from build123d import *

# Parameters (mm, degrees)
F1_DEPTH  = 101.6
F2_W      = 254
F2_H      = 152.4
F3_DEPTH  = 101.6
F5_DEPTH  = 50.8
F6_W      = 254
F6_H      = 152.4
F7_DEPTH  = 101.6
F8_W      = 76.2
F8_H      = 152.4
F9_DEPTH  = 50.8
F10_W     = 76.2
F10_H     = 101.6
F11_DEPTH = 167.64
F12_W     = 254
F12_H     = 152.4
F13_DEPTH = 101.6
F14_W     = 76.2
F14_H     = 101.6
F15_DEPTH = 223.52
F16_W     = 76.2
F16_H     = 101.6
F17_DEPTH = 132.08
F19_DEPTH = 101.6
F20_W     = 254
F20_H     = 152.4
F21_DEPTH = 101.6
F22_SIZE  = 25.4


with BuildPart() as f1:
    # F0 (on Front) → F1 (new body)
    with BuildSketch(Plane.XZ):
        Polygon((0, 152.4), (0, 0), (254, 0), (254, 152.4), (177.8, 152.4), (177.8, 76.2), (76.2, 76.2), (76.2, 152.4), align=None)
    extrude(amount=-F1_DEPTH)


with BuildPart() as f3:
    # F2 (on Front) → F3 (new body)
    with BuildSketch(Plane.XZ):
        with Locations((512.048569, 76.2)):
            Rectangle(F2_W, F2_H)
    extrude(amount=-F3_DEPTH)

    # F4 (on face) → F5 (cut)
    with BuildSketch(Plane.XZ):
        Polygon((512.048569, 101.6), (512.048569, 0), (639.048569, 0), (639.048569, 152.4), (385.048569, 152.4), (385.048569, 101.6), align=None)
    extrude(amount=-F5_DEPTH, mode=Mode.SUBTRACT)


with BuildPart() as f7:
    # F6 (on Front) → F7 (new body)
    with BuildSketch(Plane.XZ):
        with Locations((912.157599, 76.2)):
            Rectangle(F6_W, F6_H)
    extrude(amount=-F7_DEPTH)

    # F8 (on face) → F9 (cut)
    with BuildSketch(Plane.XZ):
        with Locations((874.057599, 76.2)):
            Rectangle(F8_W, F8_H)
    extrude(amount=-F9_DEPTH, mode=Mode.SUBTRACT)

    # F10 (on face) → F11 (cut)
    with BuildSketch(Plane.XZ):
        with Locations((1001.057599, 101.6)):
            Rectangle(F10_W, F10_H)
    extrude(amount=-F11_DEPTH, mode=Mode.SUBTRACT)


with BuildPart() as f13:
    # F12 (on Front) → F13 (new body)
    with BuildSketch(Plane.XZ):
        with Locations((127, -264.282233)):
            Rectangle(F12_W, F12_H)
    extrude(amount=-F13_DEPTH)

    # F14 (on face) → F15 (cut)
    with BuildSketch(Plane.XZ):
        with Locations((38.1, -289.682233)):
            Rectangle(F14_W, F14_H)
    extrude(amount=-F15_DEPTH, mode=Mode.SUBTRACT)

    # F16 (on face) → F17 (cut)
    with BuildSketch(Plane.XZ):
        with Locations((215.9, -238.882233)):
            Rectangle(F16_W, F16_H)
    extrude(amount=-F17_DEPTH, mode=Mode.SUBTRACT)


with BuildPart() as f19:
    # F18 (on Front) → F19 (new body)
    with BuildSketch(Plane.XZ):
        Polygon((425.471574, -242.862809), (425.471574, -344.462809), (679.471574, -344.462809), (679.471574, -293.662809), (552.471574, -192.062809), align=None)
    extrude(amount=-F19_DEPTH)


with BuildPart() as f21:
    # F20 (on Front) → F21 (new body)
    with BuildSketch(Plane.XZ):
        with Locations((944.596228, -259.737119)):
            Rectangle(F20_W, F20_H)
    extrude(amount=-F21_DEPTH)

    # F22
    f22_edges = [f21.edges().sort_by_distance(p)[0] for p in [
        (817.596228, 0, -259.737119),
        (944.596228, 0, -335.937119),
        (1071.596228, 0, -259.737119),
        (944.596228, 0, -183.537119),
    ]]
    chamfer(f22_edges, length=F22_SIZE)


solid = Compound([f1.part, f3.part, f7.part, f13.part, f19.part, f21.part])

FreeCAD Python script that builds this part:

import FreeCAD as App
import Part
import Sketcher
from FreeCAD import Vector
Q = App.Units.Quantity


def edges_at(feature, points):
    """Names of the edges that pass closest to the given points."""
    edges = feature.Shape.Edges
    near = lambda p: min(range(len(edges)), key=lambda i: edges[i].distToShape(Part.Vertex(*p))[0])
    return sorted({f"Edge{near(p) + 1}" for p in points})

doc = App.newDocument("Part")
body = doc.addObject("PartDesign::Body", "Body")

# Sketch on XZ plane
sketch1 = body.newObject("Sketcher::SketchObject", "Sketch")
sketch1.AttachmentSupport = (doc.getObject("XZ_Plane"), [""])
sketch1.MapMode = "FlatFace"
sketch1.addGeometry(Part.LineSegment(Vector(0, 152.4, 0), Vector(0, 0, 0)), False)
sketch1.addGeometry(Part.LineSegment(Vector(0, 0, 0), Vector(254, 0, 0)), False)
sketch1.addGeometry(Part.LineSegment(Vector(254, 0, 0), Vector(254, 152.4, 0)), False)
sketch1.addGeometry(Part.LineSegment(Vector(254, 152.4, 0), Vector(177.8, 152.4, 0)), False)
sketch1.addGeometry(Part.LineSegment(Vector(177.8, 152.4, 0), Vector(177.8, 76.2, 0)), False)
sketch1.addGeometry(Part.LineSegment(Vector(177.8, 76.2, 0), Vector(76.2, 76.2, 0)), False)
sketch1.addGeometry(Part.LineSegment(Vector(76.2, 76.2, 0), Vector(76.2, 152.4, 0)), False)
sketch1.addGeometry(Part.LineSegment(Vector(76.2, 152.4, 0), Vector(0, 152.4, 0)), False)
sketch1.addConstraint(Sketcher.Constraint("Coincident", 0, 2, 1, 1))
sketch1.addConstraint(Sketcher.Constraint("Coincident", 1, 2, 2, 1))
sketch1.addConstraint(Sketcher.Constraint("Coincident", 2, 2, 3, 1))
sketch1.addConstraint(Sketcher.Constraint("Coincident", 3, 2, 4, 1))
sketch1.addConstraint(Sketcher.Constraint("Coincident", 4, 2, 5, 1))
sketch1.addConstraint(Sketcher.Constraint("Coincident", 5, 2, 6, 1))
sketch1.addConstraint(Sketcher.Constraint("Coincident", 6, 2, 7, 1))
sketch1.addConstraint(Sketcher.Constraint("Coincident", 7, 2, 0, 1))
sketch1.addConstraint(Sketcher.Constraint("Vertical", 0))
sketch1.addConstraint(Sketcher.Constraint("Horizontal", 1))
sketch1.addConstraint(Sketcher.Constraint("Vertical", 2))
sketch1.addConstraint(Sketcher.Constraint("Horizontal", 3))
sketch1.addConstraint(Sketcher.Constraint("Vertical", 4))
sketch1.addConstraint(Sketcher.Constraint("Horizontal", 5))
sketch1.addConstraint(Sketcher.Constraint("Vertical", 6))
sketch1.addConstraint(Sketcher.Constraint("Horizontal", 7))
sketch1.addConstraint(Sketcher.Constraint("Coincident", 0, 2, -1, 1))
sketch1.addConstraint(Sketcher.Constraint("Horizontal", 3, 2, 6, 2))
sketch1.addConstraint(Sketcher.Constraint("Equal", 3, 7))
sketch1.addConstraint(Sketcher.Constraint("Equal", 7, 4))
sketch1.addConstraint(Sketcher.Constraint("DistanceX", 1, 1, 1, 2, Q("10 in")))
sketch1.addConstraint(Sketcher.Constraint("DistanceX", 3, 2, 3, 1, Q("3 in")))
sketch1.addConstraint(Sketcher.Constraint("DistanceY", 0, 2, 0, 1, Q("6 in")))
pad1 = body.newObject("PartDesign::Pad", "Pad")
pad1.Profile = sketch1
pad1.Length = Q("4 in")
pad1.Reversed = True
body2 = doc.addObject("PartDesign::Body", "Body001")

# Sketch on XZ plane
sketch2 = body2.newObject("Sketcher::SketchObject", "Sketch001")
sketch2.AttachmentSupport = (doc.getObject("XZ_Plane001"), [""])
sketch2.MapMode = "FlatFace"
sketch2.addGeometry(Part.LineSegment(Vector(385.048569, 152.4, 0), Vector(385.048569, 0, 0)), False)
sketch2.addGeometry(Part.LineSegment(Vector(385.048569, 0, 0), Vector(639.048569, 0, 0)), False)
sketch2.addGeometry(Part.LineSegment(Vector(639.048569, 0, 0), Vector(639.048569, 152.4, 0)), False)
sketch2.addGeometry(Part.LineSegment(Vector(639.048569, 152.4, 0), Vector(385.048569, 152.4, 0)), False)
sketch2.addConstraint(Sketcher.Constraint("Coincident", 0, 2, 1, 1))
sketch2.addConstraint(Sketcher.Constraint("Coincident", 1, 2, 2, 1))
sketch2.addConstraint(Sketcher.Constraint("Coincident", 2, 2, 3, 1))
sketch2.addConstraint(Sketcher.Constraint("Coincident", 3, 2, 0, 1))
sketch2.addConstraint(Sketcher.Constraint("Vertical", 0))
sketch2.addConstraint(Sketcher.Constraint("Horizontal", 1))
sketch2.addConstraint(Sketcher.Constraint("Vertical", 2))
sketch2.addConstraint(Sketcher.Constraint("Horizontal", 3))
sketch2.addConstraint(Sketcher.Constraint("PointOnObject", 0, 2, -1))
sketch2.addConstraint(Sketcher.Constraint("DistanceX", 1, 1, 1, 2, Q("10 in")))
sketch2.addConstraint(Sketcher.Constraint("DistanceY", 0, 2, 0, 1, Q("6 in")))
sketch2.addConstraint(Sketcher.Constraint("DistanceX", -1, 1, 0, 2, Q("385.048569 mm")))
pad2 = body2.newObject("PartDesign::Pad", "Pad001")
pad2.Profile = sketch2
pad2.Length = Q("4 in")
pad2.Reversed = True

# Sketch on XZ plane
sketch3 = body2.newObject("Sketcher::SketchObject", "Sketch002")
sketch3.AttachmentSupport = (doc.getObject("XZ_Plane001"), [""])
sketch3.MapMode = "FlatFace"
sketch3.addGeometry(Part.LineSegment(Vector(512.048569, 101.6, 0), Vector(512.048569, 0, 0)), False)
sketch3.addGeometry(Part.LineSegment(Vector(512.048569, 0, 0), Vector(639.048569, 0, 0)), False)
sketch3.addGeometry(Part.LineSegment(Vector(639.048569, 0, 0), Vector(639.048569, 152.4, 0)), False)
sketch3.addGeometry(Part.LineSegment(Vector(639.048569, 152.4, 0), Vector(385.048569, 152.4, 0)), False)
sketch3.addGeometry(Part.LineSegment(Vector(385.048569, 152.4, 0), Vector(385.048569, 101.6, 0)), False)
sketch3.addGeometry(Part.LineSegment(Vector(385.048569, 101.6, 0), Vector(512.048569, 101.6, 0)), False)
sketch3.addConstraint(Sketcher.Constraint("Coincident", 0, 2, 1, 1))
sketch3.addConstraint(Sketcher.Constraint("Coincident", 1, 2, 2, 1))
sketch3.addConstraint(Sketcher.Constraint("Coincident", 2, 2, 3, 1))
sketch3.addConstraint(Sketcher.Constraint("Coincident", 3, 2, 4, 1))
sketch3.addConstraint(Sketcher.Constraint("Coincident", 4, 2, 5, 1))
sketch3.addConstraint(Sketcher.Constraint("Coincident", 5, 2, 0, 1))
sketch3.addConstraint(Sketcher.Constraint("Vertical", 0))
sketch3.addConstraint(Sketcher.Constraint("Horizontal", 1))
sketch3.addConstraint(Sketcher.Constraint("Vertical", 2))
sketch3.addConstraint(Sketcher.Constraint("Horizontal", 3))
sketch3.addConstraint(Sketcher.Constraint("Vertical", 4))
sketch3.addConstraint(Sketcher.Constraint("Horizontal", 5))
sketch3.addConstraint(Sketcher.Constraint("PointOnObject", 0, 2, -1))
sketch3.addConstraint(Sketcher.Constraint("Equal", 1, 5))
sketch3.addConstraint(Sketcher.Constraint("DistanceX", 1, 1, 1, 2, Q("5 in")))
sketch3.addConstraint(Sketcher.Constraint("DistanceY", 0, 2, 0, 1, Q("4 in")))
sketch3.addConstraint(Sketcher.Constraint("DistanceY", 2, 1, 2, 2, Q("6 in")))
sketch3.addConstraint(Sketcher.Constraint("DistanceX", -1, 1, 0, 2, Q("512.048569 mm")))
pocket1 = body2.newObject("PartDesign::Pocket", "Pocket")
pocket1.Profile = sketch3
pocket1.Length = Q("2 in")
body3 = doc.addObject("PartDesign::Body", "Body002")

# Sketch on XZ plane
sketch4 = body3.newObject("Sketcher::SketchObject", "Sketch003")
sketch4.AttachmentSupport = (doc.getObject("XZ_Plane002"), [""])
sketch4.MapMode = "FlatFace"
sketch4.addGeometry(Part.LineSegment(Vector(785.157599, 152.4, 0), Vector(785.157599, 0, 0)), False)
sketch4.addGeometry(Part.LineSegment(Vector(785.157599, 0, 0), Vector(1039.157599, 0, 0)), False)
sketch4.addGeometry(Part.LineSegment(Vector(1039.157599, 0, 0), Vector(1039.157599, 152.4, 0)), False)
sketch4.addGeometry(Part.LineSegment(Vector(1039.157599, 152.4, 0), Vector(785.157599, 152.4, 0)), False)
sketch4.addConstraint(Sketcher.Constraint("Coincident", 0, 2, 1, 1))
sketch4.addConstraint(Sketcher.Constraint("Coincident", 1, 2, 2, 1))
sketch4.addConstraint(Sketcher.Constraint("Coincident", 2, 2, 3, 1))
sketch4.addConstraint(Sketcher.Constraint("Coincident", 3, 2, 0, 1))
sketch4.addConstraint(Sketcher.Constraint("Vertical", 0))
sketch4.addConstraint(Sketcher.Constraint("Horizontal", 1))
sketch4.addConstraint(Sketcher.Constraint("Vertical", 2))
sketch4.addConstraint(Sketcher.Constraint("Horizontal", 3))
sketch4.addConstraint(Sketcher.Constraint("PointOnObject", 0, 2, -1))
sketch4.addConstraint(Sketcher.Constraint("DistanceX", 1, 1, 1, 2, Q("10 in")))
sketch4.addConstraint(Sketcher.Constraint("DistanceY", 0, 2, 0, 1, Q("6 in")))
sketch4.addConstraint(Sketcher.Constraint("DistanceX", -1, 1, 0, 2, Q("785.157599 mm")))
pad3 = body3.newObject("PartDesign::Pad", "Pad002")
pad3.Profile = sketch4
pad3.Length = Q("4 in")
pad3.Reversed = True

# Sketch on XZ plane
sketch5 = body3.newObject("Sketcher::SketchObject", "Sketch004")
sketch5.AttachmentSupport = (doc.getObject("XZ_Plane002"), [""])
sketch5.MapMode = "FlatFace"
sketch5.addGeometry(Part.LineSegment(Vector(835.957599, 152.4, 0), Vector(835.957599, 0, 0)), False)
sketch5.addGeometry(Part.LineSegment(Vector(835.957599, 0, 0), Vector(912.157599, 0, 0)), False)
sketch5.addGeometry(Part.LineSegment(Vector(912.157599, 0, 0), Vector(912.157599, 152.4, 0)), False)
sketch5.addGeometry(Part.LineSegment(Vector(912.157599, 152.4, 0), Vector(835.957599, 152.4, 0)), False)
sketch5.addConstraint(Sketcher.Constraint("Coincident", 0, 2, 1, 1))
sketch5.addConstraint(Sketcher.Constraint("Coincident", 1, 2, 2, 1))
sketch5.addConstraint(Sketcher.Constraint("Coincident", 2, 2, 3, 1))
sketch5.addConstraint(Sketcher.Constraint("Coincident", 3, 2, 0, 1))
sketch5.addConstraint(Sketcher.Constraint("Vertical", 0))
sketch5.addConstraint(Sketcher.Constraint("Horizontal", 1))
sketch5.addConstraint(Sketcher.Constraint("Vertical", 2))
sketch5.addConstraint(Sketcher.Constraint("Horizontal", 3))
sketch5.addConstraint(Sketcher.Constraint("PointOnObject", 0, 2, -1))
sketch5.addConstraint(Sketcher.Constraint("DistanceX", 1, 1, 1, 2, Q("3 in")))
sketch5.addConstraint(Sketcher.Constraint("DistanceY", 0, 2, 0, 1, Q("6 in")))
sketch5.addConstraint(Sketcher.Constraint("DistanceX", -1, 1, 0, 2, Q("835.957599 mm")))
pocket2 = body3.newObject("PartDesign::Pocket", "Pocket001")
pocket2.Profile = sketch5
pocket2.Length = Q("2 in")

# Sketch on XZ plane
sketch6 = body3.newObject("Sketcher::SketchObject", "Sketch005")
sketch6.AttachmentSupport = (doc.getObject("XZ_Plane002"), [""])
sketch6.MapMode = "FlatFace"
sketch6.addGeometry(Part.LineSegment(Vector(962.957599, 152.4, 0), Vector(962.957599, 50.8, 0)), False)
sketch6.addGeometry(Part.LineSegment(Vector(962.957599, 50.8, 0), Vector(1039.157599, 50.8, 0)), False)
sketch6.addGeometry(Part.LineSegment(Vector(1039.157599, 50.8, 0), Vector(1039.157599, 152.4, 0)), False)
sketch6.addGeometry(Part.LineSegment(Vector(1039.157599, 152.4, 0), Vector(962.957599, 152.4, 0)), False)
sketch6.addConstraint(Sketcher.Constraint("Coincident", 0, 2, 1, 1))
sketch6.addConstraint(Sketcher.Constraint("Coincident", 1, 2, 2, 1))
sketch6.addConstraint(Sketcher.Constraint("Coincident", 2, 2, 3, 1))
sketch6.addConstraint(Sketcher.Constraint("Coincident", 3, 2, 0, 1))
sketch6.addConstraint(Sketcher.Constraint("Vertical", 0))
sketch6.addConstraint(Sketcher.Constraint("Horizontal", 1))
sketch6.addConstraint(Sketcher.Constraint("Vertical", 2))
sketch6.addConstraint(Sketcher.Constraint("Horizontal", 3))
sketch6.addConstraint(Sketcher.Constraint("DistanceX", 1, 1, 1, 2, Q("3 in")))
sketch6.addConstraint(Sketcher.Constraint("DistanceY", 0, 2, 0, 1, Q("4 in")))
sketch6.addConstraint(Sketcher.Constraint("DistanceY", -1, 1, 0, 2, Q("2 in")))
sketch6.addConstraint(Sketcher.Constraint("DistanceX", -1, 1, 0, 2, Q("962.957599 mm")))
pocket3 = body3.newObject("PartDesign::Pocket", "Pocket002")
pocket3.Profile = sketch6
pocket3.Length = Q("6.6 in")
body4 = doc.addObject("PartDesign::Body", "Body003")

# Sketch on XZ plane
sketch7 = body4.newObject("Sketcher::SketchObject", "Sketch006")
sketch7.AttachmentSupport = (doc.getObject("XZ_Plane003"), [""])
sketch7.MapMode = "FlatFace"
sketch7.addGeometry(Part.LineSegment(Vector(0, -188.082233, 0), Vector(0, -340.482233, 0)), False)
sketch7.addGeometry(Part.LineSegment(Vector(0, -340.482233, 0), Vector(254, -340.482233, 0)), False)
sketch7.addGeometry(Part.LineSegment(Vector(254, -340.482233, 0), Vector(254, -188.082233, 0)), False)
sketch7.addGeometry(Part.LineSegment(Vector(254, -188.082233, 0), Vector(0, -188.082233, 0)), False)
sketch7.addConstraint(Sketcher.Constraint("Coincident", 0, 2, 1, 1))
sketch7.addConstraint(Sketcher.Constraint("Coincident", 1, 2, 2, 1))
sketch7.addConstraint(Sketcher.Constraint("Coincident", 2, 2, 3, 1))
sketch7.addConstraint(Sketcher.Constraint("Coincident", 3, 2, 0, 1))
sketch7.addConstraint(Sketcher.Constraint("Vertical", 0))
sketch7.addConstraint(Sketcher.Constraint("Horizontal", 1))
sketch7.addConstraint(Sketcher.Constraint("Vertical", 2))
sketch7.addConstraint(Sketcher.Constraint("Horizontal", 3))
sketch7.addConstraint(Sketcher.Constraint("PointOnObject", 0, 2, -2))
sketch7.addConstraint(Sketcher.Constraint("DistanceX", 1, 1, 1, 2, Q("10 in")))
sketch7.addConstraint(Sketcher.Constraint("DistanceY", 0, 2, 0, 1, Q("6 in")))
sketch7.addConstraint(Sketcher.Constraint("DistanceY", 0, 2, -1, 1, Q("340.482233 mm")))
pad4 = body4.newObject("PartDesign::Pad", "Pad003")
pad4.Profile = sketch7
pad4.Length = Q("4 in")
pad4.Reversed = True

# Sketch on XZ plane
sketch8 = body4.newObject("Sketcher::SketchObject", "Sketch007")
sketch8.AttachmentSupport = (doc.getObject("XZ_Plane003"), [""])
sketch8.MapMode = "FlatFace"
sketch8.addGeometry(Part.LineSegment(Vector(0, -238.882233, 0), Vector(0, -340.482233, 0)), False)
sketch8.addGeometry(Part.LineSegment(Vector(0, -340.482233, 0), Vector(76.2, -340.482233, 0)), False)
sketch8.addGeometry(Part.LineSegment(Vector(76.2, -340.482233, 0), Vector(76.2, -238.882233, 0)), False)
sketch8.addGeometry(Part.LineSegment(Vector(76.2, -238.882233, 0), Vector(0, -238.882233, 0)), False)
sketch8.addConstraint(Sketcher.Constraint("Coincident", 0, 2, 1, 1))
sketch8.addConstraint(Sketcher.Constraint("Coincident", 1, 2, 2, 1))
sketch8.addConstraint(Sketcher.Constraint("Coincident", 2, 2, 3, 1))
sketch8.addConstraint(Sketcher.Constraint("Coincident", 3, 2, 0, 1))
sketch8.addConstraint(Sketcher.Constraint("Vertical", 0))
sketch8.addConstraint(Sketcher.Constraint("Horizontal", 1))
sketch8.addConstraint(Sketcher.Constraint("Vertical", 2))
sketch8.addConstraint(Sketcher.Constraint("Horizontal", 3))
sketch8.addConstraint(Sketcher.Constraint("PointOnObject", 0, 2, -2))
sketch8.addConstraint(Sketcher.Constraint("DistanceX", 1, 1, 1, 2, Q("3 in")))
sketch8.addConstraint(Sketcher.Constraint("DistanceY", 0, 2, 0, 1, Q("4 in")))
sketch8.addConstraint(Sketcher.Constraint("DistanceY", 0, 2, -1, 1, Q("340.482233 mm")))
pocket4 = body4.newObject("PartDesign::Pocket", "Pocket003")
pocket4.Profile = sketch8
pocket4.Length = Q("8.8 in")

# Sketch on XZ plane
sketch9 = body4.newObject("Sketcher::SketchObject", "Sketch008")
sketch9.AttachmentSupport = (doc.getObject("XZ_Plane003"), [""])
sketch9.MapMode = "FlatFace"
sketch9.addGeometry(Part.LineSegment(Vector(177.8, -188.082233, 0), Vector(177.8, -289.682233, 0)), False)
sketch9.addGeometry(Part.LineSegment(Vector(177.8, -289.682233, 0), Vector(254, -289.682233, 0)), False)
sketch9.addGeometry(Part.LineSegment(Vector(254, -289.682233, 0), Vector(254, -188.082233, 0)), False)
sketch9.addGeometry(Part.LineSegment(Vector(254, -188.082233, 0), Vector(177.8, -188.082233, 0)), False)
sketch9.addConstraint(Sketcher.Constraint("Coincident", 0, 2, 1, 1))
sketch9.addConstraint(Sketcher.Constraint("Coincident", 1, 2, 2, 1))
sketch9.addConstraint(Sketcher.Constraint("Coincident", 2, 2, 3, 1))
sketch9.addConstraint(Sketcher.Constraint("Coincident", 3, 2, 0, 1))
sketch9.addConstraint(Sketcher.Constraint("Vertical", 0))
sketch9.addConstraint(Sketcher.Constraint("Horizontal", 1))
sketch9.addConstraint(Sketcher.Constraint("Vertical", 2))
sketch9.addConstraint(Sketcher.Constraint("Horizontal", 3))
sketch9.addConstraint(Sketcher.Constraint("DistanceX", 1, 1, 1, 2, Q("3 in")))
sketch9.addConstraint(Sketcher.Constraint("DistanceY", 0, 2, 0, 1, Q("4 in")))
sketch9.addConstraint(Sketcher.Constraint("DistanceX", -1, 1, 0, 2, Q("7 in")))
sketch9.addConstraint(Sketcher.Constraint("DistanceY", 0, 2, -1, 1, Q("289.682233 mm")))
pocket5 = body4.newObject("PartDesign::Pocket", "Pocket004")
pocket5.Profile = sketch9
pocket5.Length = Q("5.2 in")
body5 = doc.addObject("PartDesign::Body", "Body004")

# Sketch on XZ plane
sketch10 = body5.newObject("Sketcher::SketchObject", "Sketch009")
sketch10.AttachmentSupport = (doc.getObject("XZ_Plane004"), [""])
sketch10.MapMode = "FlatFace"
sketch10.addGeometry(Part.LineSegment(Vector(425.471574, -242.862809, 0), Vector(425.471574, -344.462809, 0)), False)
sketch10.addGeometry(Part.LineSegment(Vector(425.471574, -344.462809, 0), Vector(679.471574, -344.462809, 0)), False)
sketch10.addGeometry(Part.LineSegment(Vector(679.471574, -344.462809, 0), Vector(679.471574, -293.662809, 0)), False)
sketch10.addGeometry(Part.LineSegment(Vector(679.471574, -293.662809, 0), Vector(552.471574, -192.062809, 0)), False)
sketch10.addGeometry(Part.LineSegment(Vector(552.471574, -192.062809, 0), Vector(425.471574, -242.862809, 0)), False)
sketch10.addConstraint(Sketcher.Constraint("Coincident", 0, 2, 1, 1))
sketch10.addConstraint(Sketcher.Constraint("Coincident", 1, 2, 2, 1))
sketch10.addConstraint(Sketcher.Constraint("Coincident", 2, 2, 3, 1))
sketch10.addConstraint(Sketcher.Constraint("Coincident", 3, 2, 4, 1))
sketch10.addConstraint(Sketcher.Constraint("Coincident", 4, 2, 0, 1))
sketch10.addConstraint(Sketcher.Constraint("Vertical", 0))
sketch10.addConstraint(Sketcher.Constraint("Horizontal", 1))
sketch10.addConstraint(Sketcher.Constraint("Vertical", 2))
sketch10.addConstraint(Sketcher.Constraint("DistanceX", 1, 1, 1, 2, Q("10 in")))
sketch10.addConstraint(Sketcher.Constraint("DistanceY", 0, 2, 0, 1, Q("4 in")))
sketch10.addConstraint(Sketcher.Constraint("DistanceY", 2, 1, 2, 2, Q("2 in")))
sketch10.addConstraint(Sketcher.Constraint("DistanceX", 3, 2, 2, 2, Q("5 in")))
sketch10.addConstraint(Sketcher.Constraint("DistanceY", 2, 2, 3, 2, Q("4 in")))
sketch10.addConstraint(Sketcher.Constraint("DistanceY", 0, 2, -1, 1, Q("344.462809 mm")))
sketch10.addConstraint(Sketcher.Constraint("DistanceX", -1, 1, 0, 2, Q("425.471574 mm")))
pad5 = body5.newObject("PartDesign::Pad", "Pad004")
pad5.Profile = sketch10
pad5.Length = Q("4 in")
pad5.Reversed = True
body6 = doc.addObject("PartDesign::Body", "Body005")

# Sketch on XZ plane
sketch11 = body6.newObject("Sketcher::SketchObject", "Sketch010")
sketch11.AttachmentSupport = (doc.getObject("XZ_Plane005"), [""])
sketch11.MapMode = "FlatFace"
sketch11.addGeometry(Part.LineSegment(Vector(817.596228, -183.537119, 0), Vector(817.596228, -335.937119, 0)), False)
sketch11.addGeometry(Part.LineSegment(Vector(817.596228, -335.937119, 0), Vector(1071.596228, -335.937119, 0)), False)
sketch11.addGeometry(Part.LineSegment(Vector(1071.596228, -335.937119, 0), Vector(1071.596228, -183.537119, 0)), False)
sketch11.addGeometry(Part.LineSegment(Vector(1071.596228, -183.537119, 0), Vector(817.596228, -183.537119, 0)), False)
sketch11.addConstraint(Sketcher.Constraint("Coincident", 0, 2, 1, 1))
sketch11.addConstraint(Sketcher.Constraint("Coincident", 1, 2, 2, 1))
sketch11.addConstraint(Sketcher.Constraint("Coincident", 2, 2, 3, 1))
sketch11.addConstraint(Sketcher.Constraint("Coincident", 3, 2, 0, 1))
sketch11.addConstraint(Sketcher.Constraint("Vertical", 0))
sketch11.addConstraint(Sketcher.Constraint("Horizontal", 1))
sketch11.addConstraint(Sketcher.Constraint("Vertical", 2))
sketch11.addConstraint(Sketcher.Constraint("Horizontal", 3))
sketch11.addConstraint(Sketcher.Constraint("DistanceX", 1, 1, 1, 2, Q("10 in")))
sketch11.addConstraint(Sketcher.Constraint("DistanceY", 0, 2, 0, 1, Q("6 in")))
sketch11.addConstraint(Sketcher.Constraint("DistanceX", -1, 1, 0, 2, Q("817.596228 mm")))
sketch11.addConstraint(Sketcher.Constraint("DistanceY", 0, 2, -1, 1, Q("335.937119 mm")))
pad6 = body6.newObject("PartDesign::Pad", "Pad005")
pad6.Profile = sketch11
pad6.Length = Q("4 in")
pad6.Reversed = True
doc.recompute()

chamfer = body6.newObject("PartDesign::Chamfer", "Chamfer")
chamfer.Base = (pad6, edges_at(pad6, [
    (817.596, 0, -259.737),
    (944.596, 0, -335.937),
    (1071.596, 0, -259.737),
    (944.596, 0, -183.537),
]))
chamfer.Size = Q("1 in")

doc.recompute()
